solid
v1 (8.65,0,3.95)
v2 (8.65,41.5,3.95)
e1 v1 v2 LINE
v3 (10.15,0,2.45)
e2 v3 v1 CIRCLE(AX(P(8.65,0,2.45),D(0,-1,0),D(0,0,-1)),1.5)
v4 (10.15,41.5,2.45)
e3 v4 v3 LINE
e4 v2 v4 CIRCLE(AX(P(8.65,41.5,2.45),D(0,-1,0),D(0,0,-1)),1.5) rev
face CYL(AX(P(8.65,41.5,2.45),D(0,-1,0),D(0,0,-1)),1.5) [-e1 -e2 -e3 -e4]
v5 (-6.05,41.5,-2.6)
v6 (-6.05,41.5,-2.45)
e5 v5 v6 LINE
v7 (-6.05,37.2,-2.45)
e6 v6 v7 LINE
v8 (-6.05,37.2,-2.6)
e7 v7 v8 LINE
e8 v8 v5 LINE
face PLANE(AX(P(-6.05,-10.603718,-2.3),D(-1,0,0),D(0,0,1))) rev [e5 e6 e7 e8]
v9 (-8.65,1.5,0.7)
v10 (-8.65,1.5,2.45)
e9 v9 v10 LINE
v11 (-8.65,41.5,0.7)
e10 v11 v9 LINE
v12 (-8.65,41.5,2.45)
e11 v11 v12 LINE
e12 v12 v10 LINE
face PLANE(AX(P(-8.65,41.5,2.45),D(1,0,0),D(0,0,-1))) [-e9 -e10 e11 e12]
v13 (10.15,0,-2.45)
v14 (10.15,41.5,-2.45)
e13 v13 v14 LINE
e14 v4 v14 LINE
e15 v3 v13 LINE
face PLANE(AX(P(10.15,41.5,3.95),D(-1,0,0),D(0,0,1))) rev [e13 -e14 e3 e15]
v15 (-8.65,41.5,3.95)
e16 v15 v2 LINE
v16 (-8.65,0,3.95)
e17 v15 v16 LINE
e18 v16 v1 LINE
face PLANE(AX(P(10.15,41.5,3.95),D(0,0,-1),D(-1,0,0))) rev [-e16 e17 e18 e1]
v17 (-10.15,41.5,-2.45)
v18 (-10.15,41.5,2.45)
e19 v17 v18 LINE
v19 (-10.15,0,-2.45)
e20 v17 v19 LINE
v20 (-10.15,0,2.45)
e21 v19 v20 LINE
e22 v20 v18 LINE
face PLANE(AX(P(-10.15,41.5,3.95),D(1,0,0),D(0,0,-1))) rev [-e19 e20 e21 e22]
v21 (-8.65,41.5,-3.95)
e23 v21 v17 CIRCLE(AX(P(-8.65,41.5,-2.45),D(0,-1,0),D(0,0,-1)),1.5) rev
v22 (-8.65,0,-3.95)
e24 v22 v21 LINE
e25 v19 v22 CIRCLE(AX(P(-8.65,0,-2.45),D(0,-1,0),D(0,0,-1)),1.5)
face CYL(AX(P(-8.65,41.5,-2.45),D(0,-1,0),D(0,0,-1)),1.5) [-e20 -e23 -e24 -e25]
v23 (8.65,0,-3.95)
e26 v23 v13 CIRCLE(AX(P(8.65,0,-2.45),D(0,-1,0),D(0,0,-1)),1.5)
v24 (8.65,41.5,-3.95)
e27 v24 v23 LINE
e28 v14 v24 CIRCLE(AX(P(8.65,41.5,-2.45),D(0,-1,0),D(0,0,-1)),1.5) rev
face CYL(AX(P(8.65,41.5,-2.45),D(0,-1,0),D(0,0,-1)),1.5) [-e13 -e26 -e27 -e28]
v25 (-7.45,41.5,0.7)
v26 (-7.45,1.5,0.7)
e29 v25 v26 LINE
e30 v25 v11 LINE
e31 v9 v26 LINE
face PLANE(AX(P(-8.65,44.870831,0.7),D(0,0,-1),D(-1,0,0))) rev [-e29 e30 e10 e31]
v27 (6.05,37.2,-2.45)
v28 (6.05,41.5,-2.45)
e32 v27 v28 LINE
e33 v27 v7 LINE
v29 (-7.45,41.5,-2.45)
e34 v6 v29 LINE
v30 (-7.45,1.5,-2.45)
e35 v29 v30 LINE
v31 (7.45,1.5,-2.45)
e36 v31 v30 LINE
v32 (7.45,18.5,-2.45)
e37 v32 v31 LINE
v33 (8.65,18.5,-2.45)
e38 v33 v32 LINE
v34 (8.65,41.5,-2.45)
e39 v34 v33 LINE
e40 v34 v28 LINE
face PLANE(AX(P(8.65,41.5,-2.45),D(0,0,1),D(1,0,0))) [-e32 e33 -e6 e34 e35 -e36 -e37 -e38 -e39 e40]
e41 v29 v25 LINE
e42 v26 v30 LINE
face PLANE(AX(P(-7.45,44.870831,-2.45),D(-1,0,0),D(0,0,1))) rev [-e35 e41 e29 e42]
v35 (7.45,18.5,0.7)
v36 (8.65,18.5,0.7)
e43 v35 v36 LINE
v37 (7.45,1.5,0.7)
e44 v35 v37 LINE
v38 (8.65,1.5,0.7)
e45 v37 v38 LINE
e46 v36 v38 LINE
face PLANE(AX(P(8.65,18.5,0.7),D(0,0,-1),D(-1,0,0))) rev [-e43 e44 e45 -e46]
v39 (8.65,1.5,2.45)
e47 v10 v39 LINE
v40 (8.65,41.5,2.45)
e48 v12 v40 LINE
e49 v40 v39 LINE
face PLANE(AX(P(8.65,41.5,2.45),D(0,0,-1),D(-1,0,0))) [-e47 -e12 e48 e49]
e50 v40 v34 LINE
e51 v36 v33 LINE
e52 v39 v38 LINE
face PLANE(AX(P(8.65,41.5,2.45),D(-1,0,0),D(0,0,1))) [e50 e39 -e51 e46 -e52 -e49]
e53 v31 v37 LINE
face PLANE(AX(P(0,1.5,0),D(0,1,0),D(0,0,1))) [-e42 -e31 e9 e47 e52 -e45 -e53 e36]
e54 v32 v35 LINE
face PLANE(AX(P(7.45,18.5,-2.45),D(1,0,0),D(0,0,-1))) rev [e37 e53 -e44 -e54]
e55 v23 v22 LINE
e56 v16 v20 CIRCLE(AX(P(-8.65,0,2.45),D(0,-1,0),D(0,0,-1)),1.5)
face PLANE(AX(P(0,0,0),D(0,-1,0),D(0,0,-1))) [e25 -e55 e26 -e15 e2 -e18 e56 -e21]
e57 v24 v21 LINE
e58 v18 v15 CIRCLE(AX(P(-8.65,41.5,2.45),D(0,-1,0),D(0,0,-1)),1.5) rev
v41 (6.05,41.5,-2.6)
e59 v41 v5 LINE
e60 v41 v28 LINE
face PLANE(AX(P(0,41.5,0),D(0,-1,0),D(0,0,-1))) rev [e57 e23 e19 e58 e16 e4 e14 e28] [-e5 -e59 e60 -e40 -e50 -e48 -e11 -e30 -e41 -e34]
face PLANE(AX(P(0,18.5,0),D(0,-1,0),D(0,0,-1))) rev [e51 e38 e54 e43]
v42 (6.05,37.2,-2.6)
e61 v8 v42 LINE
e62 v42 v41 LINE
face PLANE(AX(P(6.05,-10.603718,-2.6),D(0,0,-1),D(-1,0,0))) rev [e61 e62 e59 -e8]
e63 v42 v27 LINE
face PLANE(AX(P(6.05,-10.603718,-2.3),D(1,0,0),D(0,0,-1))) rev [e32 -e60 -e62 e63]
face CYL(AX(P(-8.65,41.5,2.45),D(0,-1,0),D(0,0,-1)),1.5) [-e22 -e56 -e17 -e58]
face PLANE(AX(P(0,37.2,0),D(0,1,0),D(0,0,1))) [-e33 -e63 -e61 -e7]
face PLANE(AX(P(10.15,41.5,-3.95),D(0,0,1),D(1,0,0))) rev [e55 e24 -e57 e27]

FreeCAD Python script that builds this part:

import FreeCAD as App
import Part
import Sketcher
Q = App.Units.Quantity


def edges_at(feature, points):
    """Names of the edges that pass closest to the given points."""
    edges = feature.Shape.Edges
    near = lambda p: min(range(len(edges)), key=lambda i: edges[i].distToShape(Part.Vertex(*p))[0])
    return sorted({f"Edge{near(p) + 1}" for p in points})


def add_polygon(sketch, points):
    """Adds a closed chain of lines whose ends are joined by coincident constraints."""
    first, n = sketch.GeometryCount, len(points)
    for a, b in zip(points, points[1:] + points[:1]):
        sketch.addGeometry(Part.LineSegment(App.Vector(*a, 0), App.Vector(*b, 0)), False)
    for i in range(n):
        sketch.addConstraint(Sketcher.Constraint("Coincident", first + i, 2, first + (i + 1) % n, 1))

doc = App.newDocument("Part")
body = doc.addObject("PartDesign::Body", "Body")

# Sketch on XZ plane
sketch1 = body.newObject("Sketcher::SketchObject", "Sketch")
sketch1.AttachmentSupport = (doc.getObject("XZ_Plane"), [""])
sketch1.MapMode = "FlatFace"
add_polygon(sketch1, [(-10.2, -4), (-10.2, 4), (10.2, 4), (10.2, -4)])  # lines 0-3
add_polygon(sketch1, [(8.7, 2.5), (-8.7, 2.5), (-8.7, -2.5), (8.7, -2.5)])  # lines 4-7
sketch1.addConstraint([
    Sketcher.Constraint("Vertical", 0),
    Sketcher.Constraint("Horizontal", 1),
    Sketcher.Constraint("Vertical", 2),
    Sketcher.Constraint("Horizontal", 3),
    Sketcher.Constraint("Horizontal", 4),
    Sketcher.Constraint("Vertical", 5),
    Sketcher.Constraint("Horizontal", 6),
    Sketcher.Constraint("Vertical", 7),
    Sketcher.Constraint("Symmetric", 0, 2, 2, 2, -1, 1),
    Sketcher.Constraint("Symmetric", 4, 2, 6, 2, -1, 1),
    Sketcher.Constraint("DistanceX", 1, 1, 1, 2, Q("20.3 mm")),
    Sketcher.Constraint("DistanceX", 4, 2, 4, 1, Q("17.3 mm")),
    Sketcher.Constraint("DistanceY", 0, 1, 0, 2, Q("7.9 mm")),
    Sketcher.Constraint("DistanceY", 5, 2, 5, 1, Q("4.9 mm")),
])
pad1 = body.newObject("PartDesign::Pad", "Pad")
pad1.Profile = sketch1
pad1.Length = 41.5
pad1.Reversed = True

# Sketch on XZ plane
sketch2 = body.newObject("Sketcher::SketchObject", "Sketch001")
sketch2.AttachmentSupport = (doc.getObject("XZ_Plane"), [""])
sketch2.MapMode = "FlatFace"
add_polygon(sketch2, [(-10, 4), (-10, -4), (10, -4), (10, 4)])  # lines 0-3
sketch2.addConstraint([
    Sketcher.Constraint("Vertical", 0),
    Sketcher.Constraint("Horizontal", 1),
    Sketcher.Constraint("Vertical", 2),
    Sketcher.Constraint("Horizontal", 3),
    Sketcher.Constraint("Symmetric", 0, 2, 2, 2, -1, 1),
    Sketcher.Constraint("DistanceX", 1, 1, 1, 2, Q("20.3 mm")),
    Sketcher.Constraint("DistanceY", 0, 2, 0, 1, Q("7.9 mm")),
])
pad2 = body.newObject("PartDesign::Pad", "Pad001")
pad2.Profile = sketch2
pad2.Length = 1.5
pad2.Reversed = True

# Sketch on XZ plane
sketch3 = body.newObject("Sketcher::SketchObject", "Sketch002")
sketch3.AttachmentSupport = (doc.getObject("XZ_Plane"), [""])
sketch3.MapMode = "FlatFace"
sketch3.AttachmentOffset = App.Placement(App.Vector(0, 0, -1.5), App.Rotation())
add_polygon(sketch3, [(-8.7, -2.5), (-8.7, 0.7), (-7.5, 0.7), (-7.5, -2.5)])  # lines 0-3
sketch3.addConstraint([
    Sketcher.Constraint("Vertical", 0),
    Sketcher.Constraint("Horizontal", 1),
    Sketcher.Constraint("Vertical", 2),
    Sketcher.Constraint("Horizontal", 3),
    Sketcher.Constraint("DistanceX", 1, 1, 1, 2, Q("1.2 mm")),
    Sketcher.Constraint("DistanceY", 0, 1, 0, 2, Q("3.15 mm")),
    Sketcher.Constraint("DistanceY", -1, 1, 0, 2, Q("0.7 mm")),
    Sketcher.Constraint("DistanceX", 0, 2, -1, 1, Q("8.65 mm")),
])
pad3 = body.newObject("PartDesign::Pad", "Pad002")
pad3.Profile = sketch3
pad3.Length = 40
pad3.Reversed = True

# Sketch on XZ plane
sketch4 = body.newObject("Sketcher::SketchObject", "Sketch003")
sketch4.AttachmentSupport = (doc.getObject("XZ_Plane"), [""])
sketch4.MapMode = "FlatFace"
sketch4.AttachmentOffset = App.Placement(App.Vector(0, 0, -1.5), App.Rotation())
add_polygon(sketch4, [(7.5, -2.5), (7.5, 0.7), (8.7, 0.7), (8.7, -2.5)])  # lines 0-3
sketch4.addConstraint([
    Sketcher.Constraint("Vertical", 0),
    Sketcher.Constraint("Horizontal", 1),
    Sketcher.Constraint("Vertical", 2),
    Sketcher.Constraint("Horizontal", 3),
    Sketcher.Constraint("DistanceX", 1, 1, 1, 2, Q("1.2 mm")),
    Sketcher.Constraint("DistanceY", 0, 1, 0, 2, Q("3.15 mm")),
    Sketcher.Constraint("DistanceY", -1, 1, 0, 2, Q("0.7 mm")),
    Sketcher.Constraint("DistanceX", -1, 1, 0, 2, Q("7.45 mm")),
])
pad4 = body.newObject("PartDesign::Pad", "Pad003")
pad4.Profile = sketch4
pad4.Length = 17
pad4.Reversed = True

# Sketch on XZ plane
sketch5 = body.newObject("Sketcher::SketchObject", "Sketch004")
sketch5.AttachmentSupport = (doc.getObject("XZ_Plane"), [""])
sketch5.MapMode = "FlatFace"
sketch5.AttachmentOffset = App.Placement(App.Vector(0, 0, -41.5), App.Rotation())
add_polygon(sketch5, [(-6.05, -2.6), (-6.05, -2.3), (6.05, -2.3), (6.05, -2.6)])  # lines 0-3
sketch5.addConstraint([
    Sketcher.Constraint("Vertical", 0),
    Sketcher.Constraint("Horizontal", 1),
    Sketcher.Constraint("Vertical", 2),
    Sketcher.Constraint("Horizontal", 3),
    Sketcher.Constraint("DistanceX", 1, 1, 1, 2, Q("12.1 mm")),
    Sketcher.Constraint("DistanceY", 0, 1, 0, 2, Q("0.3 mm")),
    Sketcher.Constraint("DistanceY", 0, 2, -1, 1, Q("2.3 mm")),
    Sketcher.Constraint("DistanceX", 0, 2, -1, 1, Q("6.05 mm")),
])
pocket1 = body.newObject("PartDesign::Pocket", "Pocket")
pocket1.Profile = sketch5
pocket1.Length = 4.3
pocket1.Reversed = True
doc.recompute()

fillet = body.newObject("PartDesign::Fillet", "Fillet")
fillet.Base = (pocket1, edges_at(pocket1, [
    (-10.15, 20.75, 3.95),
    (-10.15, 20.75, -3.95),
    (10.15, 20.75, -3.95),
    (10.15, 20.75, 3.95),
]))
fillet.Radius = 1.5

doc.recompute()
